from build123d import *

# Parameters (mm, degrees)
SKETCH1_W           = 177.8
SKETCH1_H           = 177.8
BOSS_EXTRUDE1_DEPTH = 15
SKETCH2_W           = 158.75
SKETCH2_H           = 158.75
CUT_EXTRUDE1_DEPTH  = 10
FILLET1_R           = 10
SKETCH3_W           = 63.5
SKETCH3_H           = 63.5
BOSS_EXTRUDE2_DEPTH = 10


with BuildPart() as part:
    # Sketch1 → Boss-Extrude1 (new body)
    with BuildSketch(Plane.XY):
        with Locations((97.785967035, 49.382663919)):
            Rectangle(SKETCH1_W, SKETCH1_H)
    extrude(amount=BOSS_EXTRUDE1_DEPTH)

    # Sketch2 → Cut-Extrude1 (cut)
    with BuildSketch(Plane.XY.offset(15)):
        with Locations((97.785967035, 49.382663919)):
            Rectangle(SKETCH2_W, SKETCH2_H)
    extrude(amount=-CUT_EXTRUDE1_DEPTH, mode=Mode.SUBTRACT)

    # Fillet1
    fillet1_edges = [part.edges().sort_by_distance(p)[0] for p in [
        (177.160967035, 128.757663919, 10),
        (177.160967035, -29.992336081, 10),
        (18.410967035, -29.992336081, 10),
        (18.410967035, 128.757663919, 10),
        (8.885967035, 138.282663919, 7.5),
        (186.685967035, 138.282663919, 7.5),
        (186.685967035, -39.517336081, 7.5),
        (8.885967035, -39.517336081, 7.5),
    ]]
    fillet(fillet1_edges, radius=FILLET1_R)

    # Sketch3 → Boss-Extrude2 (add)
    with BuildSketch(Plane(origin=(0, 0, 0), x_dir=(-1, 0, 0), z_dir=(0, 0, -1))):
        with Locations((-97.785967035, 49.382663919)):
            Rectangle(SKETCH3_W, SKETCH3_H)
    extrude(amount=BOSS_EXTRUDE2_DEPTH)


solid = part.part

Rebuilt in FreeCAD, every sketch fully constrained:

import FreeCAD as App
import Part
import Sketcher
from FreeCAD import Vector
Q = App.Units.Quantity


def edges_at(feature, points):
    """Names of the edges that pass closest to the given points."""
    edges = feature.Shape.Edges
    near = lambda p: min(range(len(edges)), key=lambda i: edges[i].distToShape(Part.Vertex(*p))[0])
    return sorted({f"Edge{near(p) + 1}" for p in points})


def add_polygon(sketch, points):
    """Adds a closed chain of lines whose ends are joined by coincident constraints."""
    first, n = sketch.GeometryCount, len(points)
    for a, b in zip(points, points[1:] + points[:1]):
        sketch.addGeometry(Part.LineSegment(App.Vector(*a, 0), App.Vector(*b, 0)), False)
    for i in range(n):
        sketch.addConstraint(Sketcher.Constraint("Coincident", first + i, 2, first + (i + 1) % n, 1))

doc = App.newDocument("Part")
params = doc.addObject("Spreadsheet::Sheet", "Params")
for row, (alias, value) in enumerate([
    ("sketch1_width", "7 in"),
    ("pad1_length", "15 mm"),
    ("sketch2_width", "6.25 in"),
    ("pocket1_length", "10 mm"),
    ("fillet_radius", "10 mm"),
    ("sketch3_width", "2.5 in"),
    ("pad2_length", "10 mm"),
], start=1):
    params.set(f"A{row}", alias)
    params.set(f"B{row}", "=" + value)
    params.setAlias(f"B{row}", alias)

body = doc.addObject("PartDesign::Body", "Body")

# Sketch on XY plane
sketch1 = doc.addObject("Sketcher::SketchObject", "Sketch")
body.addObject(sketch1)
sketch1.AttachmentSupport = (doc.XY_Plane, [""])
sketch1.MapMode = "FlatFace"
add_polygon(sketch1, [(9, 138), (9, -40), (187, -40), (187, 138)])  # lines 0-3
sketch1.addConstraint(Sketcher.Constraint("Vertical", 0))
sketch1.addConstraint(Sketcher.Constraint("Horizontal", 1))
sketch1.addConstraint(Sketcher.Constraint("Vertical", 2))
sketch1.addConstraint(Sketcher.Constraint("Horizontal", 3))
sketch1.addConstraint(Sketcher.Constraint("Equal", 3, 0))
sketch1.addConstraint(Sketcher.Constraint("DistanceX", 1, 1, 1, 2, Q("7 in")))
sketch1.addConstraint(Sketcher.Constraint("DistanceX", -1, 1, 0, 2, Q("8.885967 mm")))
sketch1.addConstraint(Sketcher.Constraint("DistanceY", 0, 2, -1, 1, Q("39.517336 mm")))
sketch1.setExpression("Constraints[9]", "Params.sketch1_width")
pad1 = doc.addObject("PartDesign::Pad", "Pad")
body.addObject(pad1)
pad1.Profile = sketch1
pad1.setExpression("Length", "Params.pad1_length")

# Sketch on XY plane
sketch2 = doc.addObject("Sketcher::SketchObject", "Sketch001")
body.addObject(sketch2)
sketch2.AttachmentSupport = (doc.XY_Plane, [""])
sketch2.MapMode = "FlatFace"
sketch2.AttachmentOffset = App.Placement(Vector(0, 0, 15), App.Rotation())
add_polygon(sketch2, [(18, 129), (18, -30), (177, -30), (177, 129)])  # lines 0-3
sketch2.addConstraint(Sketcher.Constraint("Vertical", 0))
sketch2.addConstraint(Sketcher.Constraint("Horizontal", 1))
sketch2.addConstraint(Sketcher.Constraint("Vertical", 2))
sketch2.addConstraint(Sketcher.Constraint("Horizontal", 3))
sketch2.addConstraint(Sketcher.Constraint("Equal", 3, 0))
sketch2.addConstraint(Sketcher.Constraint("DistanceX", 1, 1, 1, 2, Q("6.25 in")))
sketch2.addConstraint(Sketcher.Constraint("DistanceX", -1, 1, 0, 2, Q("18.410967 mm")))
sketch2.addConstraint(Sketcher.Constraint("DistanceY", 0, 2, -1, 1, Q("29.992336 mm")))
sketch2.setExpression("Constraints[9]", "Params.sketch2_width")
pocket1 = doc.addObject("PartDesign::Pocket", "Pocket")
body.addObject(pocket1)
pocket1.Profile = sketch2
pocket1.setExpression("Length", "Params.pocket1_length")
doc.recompute()

fillet = doc.addObject("PartDesign::Fillet", "Fillet")
body.addObject(fillet)
fillet.Base = (pocket1, edges_at(pocket1, [
    (177.161, 128.758, 10),
    (177.161, -29.992, 10),
    (18.411, -29.992, 10),
    (18.411, 128.758, 10),
    (8.886, 138.283, 7.5),
    (186.686, 138.283, 7.5),
    (186.686, -39.517, 7.5),
    (8.886, -39.517, 7.5),
]))
fillet.setExpression("Radius", "Params.fillet_radius")

# Sketch on XY plane
sketch3 = doc.addObject("Sketcher::SketchObject", "Sketch002")
body.addObject(sketch3)
sketch3.AttachmentSupport = (doc.XY_Plane, [""])
sketch3.MapMode = "FlatFace"
add_polygon(sketch3, [(130, 81), (130, 18), (66, 18), (66, 81)])  # lines 0-3
sketch3.addConstraint(Sketcher.Constraint("Vertical", 0))
sketch3.addConstraint(Sketcher.Constraint("Horizontal", 1))
sketch3.addConstraint(Sketcher.Constraint("Vertical", 2))
sketch3.addConstraint(Sketcher.Constraint("Horizontal", 3))
sketch3.addConstraint(Sketcher.Constraint("Equal", 3, 0))
sketch3.addConstraint(Sketcher.Constraint("DistanceX", 1, 2, 1, 1, Q("2.5 in")))
sketch3.addConstraint(Sketcher.Constraint("DistanceX", -1, 1, 0, 2, Q("129.535967 mm")))
sketch3.addConstraint(Sketcher.Constraint("DistanceY", -1, 1, 0, 2, Q("17.632664 mm")))
sketch3.setExpression("Constraints[9]", "Params.sketch3_width")
pad2 = doc.addObject("PartDesign::Pad", "Pad001")
body.addObject(pad2)
pad2.Profile = sketch3
pad2.setExpression("Length", "Params.pad2_length")
pad2.Reversed = True

doc.recompute()
